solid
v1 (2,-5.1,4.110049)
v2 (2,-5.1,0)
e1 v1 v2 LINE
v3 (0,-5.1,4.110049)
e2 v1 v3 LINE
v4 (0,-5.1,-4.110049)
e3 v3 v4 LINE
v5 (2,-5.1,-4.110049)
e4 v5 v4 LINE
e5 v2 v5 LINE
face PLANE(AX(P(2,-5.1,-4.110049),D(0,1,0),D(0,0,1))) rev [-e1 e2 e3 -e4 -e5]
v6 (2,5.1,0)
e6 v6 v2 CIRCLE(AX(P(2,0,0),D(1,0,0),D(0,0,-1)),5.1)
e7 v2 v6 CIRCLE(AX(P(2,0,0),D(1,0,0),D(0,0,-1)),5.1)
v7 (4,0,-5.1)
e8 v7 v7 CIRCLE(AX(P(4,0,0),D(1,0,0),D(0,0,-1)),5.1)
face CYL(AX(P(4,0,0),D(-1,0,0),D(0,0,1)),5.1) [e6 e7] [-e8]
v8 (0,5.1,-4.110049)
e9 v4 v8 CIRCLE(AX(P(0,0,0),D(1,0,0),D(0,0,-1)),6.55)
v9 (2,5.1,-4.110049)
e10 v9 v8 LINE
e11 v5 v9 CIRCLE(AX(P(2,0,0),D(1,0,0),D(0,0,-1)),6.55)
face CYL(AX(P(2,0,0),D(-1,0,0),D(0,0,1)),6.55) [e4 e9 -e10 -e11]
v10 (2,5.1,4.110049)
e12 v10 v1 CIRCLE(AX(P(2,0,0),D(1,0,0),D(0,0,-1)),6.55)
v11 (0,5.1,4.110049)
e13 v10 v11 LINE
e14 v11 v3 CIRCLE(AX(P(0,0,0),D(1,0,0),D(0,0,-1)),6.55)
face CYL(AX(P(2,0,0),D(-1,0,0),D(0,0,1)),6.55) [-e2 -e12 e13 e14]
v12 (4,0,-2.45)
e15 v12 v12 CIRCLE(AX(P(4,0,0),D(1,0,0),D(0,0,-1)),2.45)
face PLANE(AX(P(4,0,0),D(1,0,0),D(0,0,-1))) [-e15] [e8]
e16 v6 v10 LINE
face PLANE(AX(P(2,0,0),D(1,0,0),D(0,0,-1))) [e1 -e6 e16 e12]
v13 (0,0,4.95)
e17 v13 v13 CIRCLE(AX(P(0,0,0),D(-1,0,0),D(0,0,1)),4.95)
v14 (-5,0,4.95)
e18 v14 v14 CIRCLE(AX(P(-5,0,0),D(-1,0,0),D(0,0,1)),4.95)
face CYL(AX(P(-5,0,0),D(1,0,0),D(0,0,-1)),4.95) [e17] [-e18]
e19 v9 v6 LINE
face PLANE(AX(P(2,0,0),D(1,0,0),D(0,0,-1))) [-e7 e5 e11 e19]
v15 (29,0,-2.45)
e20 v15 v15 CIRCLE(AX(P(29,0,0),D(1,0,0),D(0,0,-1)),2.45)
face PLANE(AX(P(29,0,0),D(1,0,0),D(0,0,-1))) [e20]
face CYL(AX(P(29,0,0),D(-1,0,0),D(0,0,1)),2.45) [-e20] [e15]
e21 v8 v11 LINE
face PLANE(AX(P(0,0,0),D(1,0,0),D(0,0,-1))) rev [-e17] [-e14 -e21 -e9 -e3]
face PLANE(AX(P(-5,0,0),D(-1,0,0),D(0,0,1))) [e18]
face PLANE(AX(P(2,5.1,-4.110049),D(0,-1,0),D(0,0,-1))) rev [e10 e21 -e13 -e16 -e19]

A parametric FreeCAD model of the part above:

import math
import FreeCAD as App
import Part
import Sketcher

doc = App.newDocument("Part")
params = doc.addObject("Spreadsheet::Sheet", "Params")
for row, (alias, value) in enumerate([
    ("sketch1_radius", "6.55 mm"),
    ("pad1_length", "2 mm"),
    ("sketch2_diameter", "10.2 mm"),
    ("pad2_length", "2 mm"),
    ("sketch3_diameter", "4.9 mm"),
    ("pad3_length", "25 mm"),
    ("sketch4_diameter", "9.9 mm"),
    ("pad4_length", "5 mm"),
], start=1):
    params.set(f"A{row}", alias)
    params.set(f"B{row}", "=" + value)
    params.setAlias(f"B{row}", alias)

body = doc.addObject("PartDesign::Body", "Body")

# Sketch on YZ plane
sketch1 = doc.addObject("Sketcher::SketchObject", "Sketch")
body.addObject(sketch1)
sketch1.AttachmentSupport = (doc.YZ_Plane, [""])
sketch1.MapMode = "FlatFace"
sketch1.addGeometry([
    Part.LineSegment(App.Vector(5, -4, 0), App.Vector(5, 4, 0)),
    Part.ArcOfCircle(Part.Circle(App.Vector(0, 0, 0), App.Vector(0, 0, 1), 7), math.radians(39), math.radians(141)),
    Part.LineSegment(App.Vector(-5, 4, 0), App.Vector(-5, -4, 0)),
    Part.ArcOfCircle(Part.Circle(App.Vector(0, 0, 0), App.Vector(0, 0, 1), 7), math.radians(-141), math.radians(-39)),
], False)
sketch1.addConstraint([
    Sketcher.Constraint("Coincident", 0, 2, 1, 1),
    Sketcher.Constraint("Coincident", 1, 2, 2, 1),
    Sketcher.Constraint("Coincident", 2, 2, 3, 1),
    Sketcher.Constraint("Coincident", 3, 2, 0, 1),
    Sketcher.Constraint("Vertical", 0),
    Sketcher.Constraint("Vertical", 2),
    Sketcher.Constraint("Coincident", 1, 3, -1, 1),
    Sketcher.Constraint("Coincident", 3, 3, -1, 1),
    Sketcher.Constraint("Equal", 1, 3),
    Sketcher.Constraint("Horizontal", 0, 2, 1, 2),
    Sketcher.Constraint("Radius", 1, 6.55),
    Sketcher.Constraint("DistanceX", -1, 1, 0, 2, 5.1),
])
sketch1.setExpression("Constraints[10]", "Params.sketch1_radius")
pad1 = doc.addObject("PartDesign::Pad", "Pad")
body.addObject(pad1)
pad1.Profile = sketch1
pad1.setExpression("Length", "Params.pad1_length")

# Sketch on YZ plane
sketch2 = doc.addObject("Sketcher::SketchObject", "Sketch001")
body.addObject(sketch2)
sketch2.AttachmentSupport = (doc.YZ_Plane, [""])
sketch2.MapMode = "FlatFace"
sketch2.AttachmentOffset = App.Placement(App.Vector(0, 0, 2), App.Rotation())
sketch2.addGeometry(Part.Circle(App.Vector(0, 0, 0), App.Vector(0, 0, 1), 5), False)
sketch2.addConstraint([
    Sketcher.Constraint("Coincident", 0, 3, -1, 1),
    Sketcher.Constraint("Diameter", 0, 10.2),
])
sketch2.setExpression("Constraints[1]", "Params.sketch2_diameter")
pad2 = doc.addObject("PartDesign::Pad", "Pad001")
body.addObject(pad2)
pad2.Profile = sketch2
pad2.setExpression("Length", "Params.pad2_length")

# Sketch on YZ plane
sketch3 = doc.addObject("Sketcher::SketchObject", "Sketch002")
body.addObject(sketch3)
sketch3.AttachmentSupport = (doc.YZ_Plane, [""])
sketch3.MapMode = "FlatFace"
sketch3.AttachmentOffset = App.Placement(App.Vector(0, 0, 4), App.Rotation())
sketch3.addGeometry(Part.Circle(App.Vector(0, 0, 0), App.Vector(0, 0, 1), 2.5), False)
sketch3.addConstraint([
    Sketcher.Constraint("Coincident", 0, 3, -1, 1),
    Sketcher.Constraint("Diameter", 0, 4.9),
])
sketch3.setExpression("Constraints[1]", "Params.sketch3_diameter")
pad3 = doc.addObject("PartDesign::Pad", "Pad002")
body.addObject(pad3)
pad3.Profile = sketch3
pad3.setExpression("Length", "Params.pad3_length")

# Sketch on YZ plane
sketch4 = doc.addObject("Sketcher::SketchObject", "Sketch003")
body.addObject(sketch4)
sketch4.AttachmentSupport = (doc.YZ_Plane, [""])
sketch4.MapMode = "FlatFace"
sketch4.addGeometry(Part.Circle(App.Vector(0, 0, 0), App.Vector(0, 0, 1), 5), False)
sketch4.addConstraint([
    Sketcher.Constraint("Coincident", 0, 3, -1, 1),
    Sketcher.Constraint("Diameter", 0, 9.9),
])
sketch4.setExpression("Constraints[1]", "Params.sketch4_diameter")
pad4 = doc.addObject("PartDesign::Pad", "Pad003")
body.addObject(pad4)
pad4.Profile = sketch4
pad4.setExpression("Length", "Params.pad4_length")
pad4.Reversed = True

doc.recompute()
